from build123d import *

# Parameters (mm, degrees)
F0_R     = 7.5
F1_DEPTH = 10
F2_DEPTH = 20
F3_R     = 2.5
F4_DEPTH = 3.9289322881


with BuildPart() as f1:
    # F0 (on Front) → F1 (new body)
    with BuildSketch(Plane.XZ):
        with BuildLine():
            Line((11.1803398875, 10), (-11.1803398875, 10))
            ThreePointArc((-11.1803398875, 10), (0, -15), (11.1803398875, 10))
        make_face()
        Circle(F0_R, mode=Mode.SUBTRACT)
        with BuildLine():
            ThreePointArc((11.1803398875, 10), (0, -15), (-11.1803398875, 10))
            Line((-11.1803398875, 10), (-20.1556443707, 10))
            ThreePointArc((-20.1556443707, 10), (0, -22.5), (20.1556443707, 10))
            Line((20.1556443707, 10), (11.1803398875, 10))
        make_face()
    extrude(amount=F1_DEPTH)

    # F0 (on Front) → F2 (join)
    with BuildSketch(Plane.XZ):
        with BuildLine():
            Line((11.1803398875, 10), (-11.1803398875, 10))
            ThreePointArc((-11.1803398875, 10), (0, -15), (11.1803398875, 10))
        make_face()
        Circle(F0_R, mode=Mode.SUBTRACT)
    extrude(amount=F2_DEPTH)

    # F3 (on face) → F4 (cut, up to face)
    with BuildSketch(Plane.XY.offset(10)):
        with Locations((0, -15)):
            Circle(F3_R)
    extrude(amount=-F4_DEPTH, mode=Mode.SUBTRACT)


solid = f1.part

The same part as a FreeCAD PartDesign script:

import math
import FreeCAD as App
import Part
import Sketcher
from FreeCAD import Vector

doc = App.newDocument("Part")
body = doc.addObject("PartDesign::Body", "Body")

# Sketch on XZ plane
sketch1 = body.newObject("Sketcher::SketchObject", "Sketch")
sketch1.AttachmentSupport = (doc.getObject("XZ_Plane"), [""])
sketch1.MapMode = "FlatFace"
sketch1.addGeometry(Part.ArcOfCircle(Part.Circle(Vector(0, 0, 0), Vector(0, 0, 1), 22.5), math.radians(153.6122), math.radians(386.3878)), False)
sketch1.addGeometry(Part.LineSegment(Vector(20.155644, 10, 0), Vector(-20.155644, 10, 0)), False)
sketch1.addGeometry(Part.Circle(Vector(0, 0, 0), Vector(0, 0, 1), 7.5), False)
sketch1.addConstraint(Sketcher.Constraint("Coincident", 0, 1, 1, 2))
sketch1.addConstraint(Sketcher.Constraint("Coincident", 1, 1, 0, 2))
sketch1.addConstraint(Sketcher.Constraint("Horizontal", 1))
sketch1.addConstraint(Sketcher.Constraint("Coincident", 0, 3, -1, 1))
sketch1.addConstraint(Sketcher.Constraint("Coincident", 2, 3, -1, 1))
sketch1.addConstraint(Sketcher.Constraint("Diameter", 2, 15.0))
sketch1.addConstraint(Sketcher.Constraint("Radius", 0, 22.5))
sketch1.addConstraint(Sketcher.Constraint("DistanceY", -1, 1, 0, 1, 10.0))
pad1 = body.newObject("PartDesign::Pad", "Pad")
pad1.Profile = sketch1
pad1.Length = 10

# Sketch on XZ plane
sketch2 = body.newObject("Sketcher::SketchObject", "Sketch001")
sketch2.AttachmentSupport = (doc.getObject("XZ_Plane"), [""])
sketch2.MapMode = "FlatFace"
sketch2.addGeometry(Part.LineSegment(Vector(11.18034, 10, 0), Vector(-11.18034, 10, 0)), False)
sketch2.addGeometry(Part.ArcOfCircle(Part.Circle(Vector(0, 0, 0), Vector(0, 0, 1), 15), math.radians(138.189685), math.radians(401.810315)), False)
sketch2.addGeometry(Part.Circle(Vector(0, 0, 0), Vector(0, 0, 1), 7.5), False)
sketch2.addConstraint(Sketcher.Constraint("Coincident", 0, 1, 1, 2))
sketch2.addConstraint(Sketcher.Constraint("Coincident", 1, 1, 0, 2))
sketch2.addConstraint(Sketcher.Constraint("Horizontal", 0))
sketch2.addConstraint(Sketcher.Constraint("Coincident", 1, 3, -1, 1))
sketch2.addConstraint(Sketcher.Constraint("Coincident", 2, 3, -1, 1))
sketch2.addConstraint(Sketcher.Constraint("Diameter", 2, 15.0))
sketch2.addConstraint(Sketcher.Constraint("Radius", 1, 15.0))
sketch2.addConstraint(Sketcher.Constraint("DistanceY", -1, 1, 0, 1, 10.0))
pad2 = body.newObject("PartDesign::Pad", "Pad001")
pad2.Profile = sketch2
pad2.Length = 20

# Sketch on XY plane
sketch3 = body.newObject("Sketcher::SketchObject", "Sketch002")
sketch3.AttachmentSupport = (doc.getObject("XY_Plane"), [""])
sketch3.MapMode = "FlatFace"
sketch3.AttachmentOffset = App.Placement(Vector(0, 0, 10), App.Rotation())
sketch3.addGeometry(Part.Circle(Vector(0, -15, 0), Vector(0, 0, 1), 2.5), False)
sketch3.addConstraint(Sketcher.Constraint("PointOnObject", 0, 3, -2))
sketch3.addConstraint(Sketcher.Constraint("Diameter", 0, 5.0))
sketch3.addConstraint(Sketcher.Constraint("DistanceY", 0, 3, -1, 1, 15.0))
pocket1 = body.newObject("PartDesign::Pocket", "Pocket")
pocket1.Profile = sketch3
pocket1.Length = 3.928932

doc.recompute()
